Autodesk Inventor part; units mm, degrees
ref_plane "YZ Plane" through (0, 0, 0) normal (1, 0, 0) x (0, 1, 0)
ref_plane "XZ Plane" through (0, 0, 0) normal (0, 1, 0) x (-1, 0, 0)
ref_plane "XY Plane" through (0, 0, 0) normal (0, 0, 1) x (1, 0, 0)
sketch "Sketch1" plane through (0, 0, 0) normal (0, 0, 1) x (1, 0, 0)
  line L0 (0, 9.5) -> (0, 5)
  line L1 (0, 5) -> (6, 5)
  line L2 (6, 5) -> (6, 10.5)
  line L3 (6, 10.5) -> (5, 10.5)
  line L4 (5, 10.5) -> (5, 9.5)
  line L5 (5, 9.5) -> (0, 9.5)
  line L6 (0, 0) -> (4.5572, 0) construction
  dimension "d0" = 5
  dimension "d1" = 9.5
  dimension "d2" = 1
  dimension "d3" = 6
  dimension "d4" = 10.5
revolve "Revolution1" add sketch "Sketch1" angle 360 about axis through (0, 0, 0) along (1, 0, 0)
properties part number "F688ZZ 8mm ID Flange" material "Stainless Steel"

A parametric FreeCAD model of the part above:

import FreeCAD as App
import Part
import Sketcher
Q = App.Units.Quantity

doc = App.newDocument("Part")
body = doc.addObject("PartDesign::Body", "Body")

# Sketch on XY plane
sketch1 = body.newObject("Sketcher::SketchObject", "Sketch")
sketch1.AttachmentSupport = (doc.getObject("XY_Plane"), [""])
sketch1.MapMode = "FlatFace"
sketch1.addGeometry([
    Part.LineSegment(App.Vector(5, 9.5, 0), App.Vector(0, 9.5, 0)),  # 0
    Part.LineSegment(App.Vector(0, 9.5, 0), App.Vector(0, 5, 0)),  # 1
    Part.LineSegment(App.Vector(0, 5, 0), App.Vector(6, 5, 0)),  # 2
    Part.LineSegment(App.Vector(6, 5, 0), App.Vector(6, 10.5, 0)),  # 3
    Part.LineSegment(App.Vector(6, 10.5, 0), App.Vector(5, 10.5, 0)),  # 4
    Part.LineSegment(App.Vector(5, 10.5, 0), App.Vector(5, 9.5, 0)),  # 5
], False)
sketch1.addConstraint([
    Sketcher.Constraint("Coincident", 0, 2, 1, 1),
    Sketcher.Constraint("Coincident", 1, 2, 2, 1),
    Sketcher.Constraint("Coincident", 2, 2, 3, 1),
    Sketcher.Constraint("Coincident", 3, 2, 4, 1),
    Sketcher.Constraint("Coincident", 4, 2, 5, 1),
    Sketcher.Constraint("Coincident", 5, 2, 0, 1),
    Sketcher.Constraint("Horizontal", 0),
    Sketcher.Constraint("Vertical", 1),
    Sketcher.Constraint("Horizontal", 2),
    Sketcher.Constraint("Vertical", 3),
    Sketcher.Constraint("Horizontal", 4),
    Sketcher.Constraint("Vertical", 5),
    Sketcher.Constraint("PointOnObject", 0, 2, -2),
    Sketcher.Constraint("Equal", 4, 5),
    Sketcher.Constraint("DistanceX", 0, 2, 0, 1, Q("5 mm")),
    Sketcher.Constraint("DistanceX", 2, 1, 2, 2, Q("6 mm")),
    Sketcher.Constraint("DistanceY", -1, 1, 1, 2, Q("5 mm")),
    Sketcher.Constraint("DistanceY", -1, 1, 0, 2, Q("9.5 mm")),
])
revolution = body.newObject("PartDesign::Revolution", "Revolution")
revolution.Profile = sketch1
revolution.ReferenceAxis = (sketch1, ["H_Axis"])
revolution.Angle = 360

doc.recompute()
